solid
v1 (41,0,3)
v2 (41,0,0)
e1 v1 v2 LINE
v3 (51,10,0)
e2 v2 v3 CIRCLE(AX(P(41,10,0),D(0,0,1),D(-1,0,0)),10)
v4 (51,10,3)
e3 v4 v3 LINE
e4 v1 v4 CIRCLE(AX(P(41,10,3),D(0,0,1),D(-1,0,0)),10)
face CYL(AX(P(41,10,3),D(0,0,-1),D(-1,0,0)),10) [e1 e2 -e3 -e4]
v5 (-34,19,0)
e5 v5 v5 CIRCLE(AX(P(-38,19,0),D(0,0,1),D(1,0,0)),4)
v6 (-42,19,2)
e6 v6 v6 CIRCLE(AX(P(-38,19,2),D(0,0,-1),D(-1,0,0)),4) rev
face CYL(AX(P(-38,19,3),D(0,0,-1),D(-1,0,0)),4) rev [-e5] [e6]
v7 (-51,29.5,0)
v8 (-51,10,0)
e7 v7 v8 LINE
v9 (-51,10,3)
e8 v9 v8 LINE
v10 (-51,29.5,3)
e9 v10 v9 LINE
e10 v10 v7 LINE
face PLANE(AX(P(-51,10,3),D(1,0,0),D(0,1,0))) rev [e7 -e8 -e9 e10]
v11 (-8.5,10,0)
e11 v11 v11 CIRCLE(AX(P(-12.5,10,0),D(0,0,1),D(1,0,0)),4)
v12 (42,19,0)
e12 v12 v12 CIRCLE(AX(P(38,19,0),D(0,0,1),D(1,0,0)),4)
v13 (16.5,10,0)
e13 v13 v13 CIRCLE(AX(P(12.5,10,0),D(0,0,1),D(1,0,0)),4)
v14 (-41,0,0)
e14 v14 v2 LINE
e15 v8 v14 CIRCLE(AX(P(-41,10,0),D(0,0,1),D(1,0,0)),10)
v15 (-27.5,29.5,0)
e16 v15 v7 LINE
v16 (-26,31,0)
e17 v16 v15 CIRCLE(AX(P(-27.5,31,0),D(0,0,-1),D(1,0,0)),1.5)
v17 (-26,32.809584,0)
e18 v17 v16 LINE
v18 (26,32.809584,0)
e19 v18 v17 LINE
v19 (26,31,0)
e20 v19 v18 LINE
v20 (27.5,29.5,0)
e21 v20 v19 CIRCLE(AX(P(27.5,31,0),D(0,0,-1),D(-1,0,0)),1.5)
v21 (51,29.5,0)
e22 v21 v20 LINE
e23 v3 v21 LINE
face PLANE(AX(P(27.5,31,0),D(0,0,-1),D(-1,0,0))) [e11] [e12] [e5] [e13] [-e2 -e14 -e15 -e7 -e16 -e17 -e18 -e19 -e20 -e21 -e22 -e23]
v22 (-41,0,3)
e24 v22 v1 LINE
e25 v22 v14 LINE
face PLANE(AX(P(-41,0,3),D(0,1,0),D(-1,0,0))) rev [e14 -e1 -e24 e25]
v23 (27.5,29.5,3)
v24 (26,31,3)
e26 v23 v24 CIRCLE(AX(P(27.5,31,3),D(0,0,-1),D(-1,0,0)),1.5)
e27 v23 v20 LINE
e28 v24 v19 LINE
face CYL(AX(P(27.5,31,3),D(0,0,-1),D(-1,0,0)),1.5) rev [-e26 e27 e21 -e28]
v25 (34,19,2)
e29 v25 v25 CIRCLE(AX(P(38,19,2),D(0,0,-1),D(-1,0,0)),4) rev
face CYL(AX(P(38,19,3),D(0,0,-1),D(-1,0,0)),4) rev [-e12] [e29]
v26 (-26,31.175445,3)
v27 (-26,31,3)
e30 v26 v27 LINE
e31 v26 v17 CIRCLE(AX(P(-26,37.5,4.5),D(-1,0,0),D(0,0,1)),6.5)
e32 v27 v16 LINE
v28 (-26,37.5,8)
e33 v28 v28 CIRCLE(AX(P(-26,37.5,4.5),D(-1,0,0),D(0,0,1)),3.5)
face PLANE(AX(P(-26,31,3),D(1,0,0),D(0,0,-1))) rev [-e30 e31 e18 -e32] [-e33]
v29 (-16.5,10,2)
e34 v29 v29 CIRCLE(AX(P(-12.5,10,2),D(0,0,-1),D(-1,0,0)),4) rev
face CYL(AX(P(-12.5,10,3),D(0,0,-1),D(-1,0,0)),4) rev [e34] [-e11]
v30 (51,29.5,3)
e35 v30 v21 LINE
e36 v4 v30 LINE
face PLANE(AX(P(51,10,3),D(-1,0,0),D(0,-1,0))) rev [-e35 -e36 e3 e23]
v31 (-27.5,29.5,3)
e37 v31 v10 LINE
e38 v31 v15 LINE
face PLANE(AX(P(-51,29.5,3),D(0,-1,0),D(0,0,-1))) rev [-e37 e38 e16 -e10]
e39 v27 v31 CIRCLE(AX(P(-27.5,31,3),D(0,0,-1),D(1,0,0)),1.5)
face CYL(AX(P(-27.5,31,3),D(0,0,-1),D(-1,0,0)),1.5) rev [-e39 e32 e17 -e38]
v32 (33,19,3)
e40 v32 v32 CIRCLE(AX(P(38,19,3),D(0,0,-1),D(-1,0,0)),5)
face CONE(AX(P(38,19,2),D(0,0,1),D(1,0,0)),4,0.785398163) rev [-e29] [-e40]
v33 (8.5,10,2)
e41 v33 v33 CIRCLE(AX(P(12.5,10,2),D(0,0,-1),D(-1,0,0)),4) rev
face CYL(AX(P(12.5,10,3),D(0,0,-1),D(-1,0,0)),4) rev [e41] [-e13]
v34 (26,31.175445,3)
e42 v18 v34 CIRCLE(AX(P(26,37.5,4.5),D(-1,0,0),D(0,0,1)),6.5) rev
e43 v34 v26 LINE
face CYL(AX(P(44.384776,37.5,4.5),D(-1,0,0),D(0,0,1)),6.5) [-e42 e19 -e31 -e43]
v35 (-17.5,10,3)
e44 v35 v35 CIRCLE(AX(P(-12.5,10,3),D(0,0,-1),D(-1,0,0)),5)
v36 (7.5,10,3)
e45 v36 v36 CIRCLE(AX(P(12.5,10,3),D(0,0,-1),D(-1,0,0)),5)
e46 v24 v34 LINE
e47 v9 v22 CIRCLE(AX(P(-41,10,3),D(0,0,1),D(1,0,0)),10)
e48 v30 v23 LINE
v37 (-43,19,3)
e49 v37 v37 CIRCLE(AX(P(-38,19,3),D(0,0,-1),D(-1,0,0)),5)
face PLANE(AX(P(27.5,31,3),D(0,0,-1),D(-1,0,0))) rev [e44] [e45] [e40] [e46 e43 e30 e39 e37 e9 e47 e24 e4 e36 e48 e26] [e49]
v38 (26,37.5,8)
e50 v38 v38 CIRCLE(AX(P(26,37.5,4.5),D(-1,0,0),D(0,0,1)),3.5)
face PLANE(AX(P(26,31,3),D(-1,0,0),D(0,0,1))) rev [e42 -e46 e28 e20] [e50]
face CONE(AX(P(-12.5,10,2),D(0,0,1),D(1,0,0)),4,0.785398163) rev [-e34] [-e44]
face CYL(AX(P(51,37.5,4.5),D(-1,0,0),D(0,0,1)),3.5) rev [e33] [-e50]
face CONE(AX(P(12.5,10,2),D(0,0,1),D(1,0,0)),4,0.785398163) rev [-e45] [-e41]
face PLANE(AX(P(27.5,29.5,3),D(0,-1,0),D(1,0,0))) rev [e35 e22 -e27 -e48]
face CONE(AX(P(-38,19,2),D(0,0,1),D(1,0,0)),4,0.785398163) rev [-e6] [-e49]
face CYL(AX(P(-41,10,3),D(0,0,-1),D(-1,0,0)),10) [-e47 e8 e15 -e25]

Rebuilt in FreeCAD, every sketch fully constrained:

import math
import FreeCAD as App
import Part
import Sketcher


def edges_at(feature, points):
    """Names of the edges that pass closest to the given points."""
    edges = feature.Shape.Edges
    near = lambda p: min(range(len(edges)), key=lambda i: edges[i].distToShape(Part.Vertex(*p))[0])
    return sorted({f"Edge{near(p) + 1}" for p in points})

doc = App.newDocument("Part")
params = doc.addObject("Spreadsheet::Sheet", "Params")
for row, (alias, value) in enumerate([
    ("sketch1_diameter", "8 mm"),
    ("sketch1_radius", "10 mm"),
    ("sketch1_radius2", "1.5 mm"),
    ("sketch1_width", "52 mm"),
    ("sketch1_width2", "82 mm"),
    ("pad1_length", "3 mm"),
    ("sketch2_diameter", "13 mm"),
    ("pad2_length", "52 mm"),
    ("sketch3_diameter", "7 mm"),
    ("chamfer_size", "1 mm"),
], start=1):
    params.set(f"A{row}", alias)
    params.set(f"B{row}", "=" + value)
    params.setAlias(f"B{row}", alias)

body = doc.addObject("PartDesign::Body", "Body")

sketch1 = body.newObject("Sketcher::SketchObject", "Sketch")
sketch1.AttachmentSupport = (doc.getObject("XY_Plane"), [""])
sketch1.MapMode = "FlatFace"
sketch1.addGeometry(Part.LineSegment(App.Vector(51, 29.5, 0), App.Vector(27.5, 29.5, 0)), False)
sketch1.addGeometry(Part.ArcOfCircle(Part.Circle(App.Vector(27.5, 31, 0), App.Vector(0, 0, 1), 1.5), math.radians(180), math.radians(270)), False)
sketch1.addGeometry(Part.LineSegment(App.Vector(26, 31, 0), App.Vector(26, 37.5, 0)), False)
sketch1.addGeometry(Part.LineSegment(App.Vector(26, 37.5, 0), App.Vector(-26, 37.5, 0)), False)
sketch1.addGeometry(Part.LineSegment(App.Vector(-26, 37.5, 0), App.Vector(-26, 31, 0)), False)
sketch1.addGeometry(Part.ArcOfCircle(Part.Circle(App.Vector(-27.5, 31, 0), App.Vector(0, 0, 1), 1.5), math.radians(-90), math.radians(0)), False)
sketch1.addGeometry(Part.LineSegment(App.Vector(-27.5, 29.5, 0), App.Vector(-51, 29.5, 0)), False)
sketch1.addGeometry(Part.LineSegment(App.Vector(-51, 29.5, 0), App.Vector(-51, 10, 0)), False)
sketch1.addGeometry(Part.ArcOfCircle(Part.Circle(App.Vector(-41, 10, 0), App.Vector(0, 0, 1), 10), math.radians(180), math.radians(270)), False)
sketch1.addGeometry(Part.LineSegment(App.Vector(-41, 0, 0), App.Vector(41, 0, 0)), False)
sketch1.addGeometry(Part.ArcOfCircle(Part.Circle(App.Vector(41, 10, 0), App.Vector(0, 0, 1), 10), math.radians(-90), math.radians(0)), False)
sketch1.addGeometry(Part.LineSegment(App.Vector(51, 10, 0), App.Vector(51, 29.5, 0)), False)
sketch1.addGeometry(Part.Circle(App.Vector(12.5, 10, 0), App.Vector(0, 0, 1), 4), False)
sketch1.addGeometry(Part.Circle(App.Vector(-12.5, 10, 0), App.Vector(0, 0, 1), 4), False)
sketch1.addGeometry(Part.Circle(App.Vector(38, 19, 0), App.Vector(0, 0, 1), 4), False)
sketch1.addGeometry(Part.Circle(App.Vector(-38, 19, 0), App.Vector(0, 0, 1), 4), False)
sketch1.addConstraint(Sketcher.Constraint("Tangent", 0, 2, 1, 2))
sketch1.addConstraint(Sketcher.Constraint("Tangent", 1, 1, 2, 1))
sketch1.addConstraint(Sketcher.Constraint("Coincident", 2, 2, 3, 1))
sketch1.addConstraint(Sketcher.Constraint("Coincident", 3, 2, 4, 1))
sketch1.addConstraint(Sketcher.Constraint("Tangent", 4, 2, 5, 2))
sketch1.addConstraint(Sketcher.Constraint("Tangent", 5, 1, 6, 1))
sketch1.addConstraint(Sketcher.Constraint("Coincident", 6, 2, 7, 1))
sketch1.addConstraint(Sketcher.Constraint("Tangent", 7, 2, 8, 1))
sketch1.addConstraint(Sketcher.Constraint("Tangent", 8, 2, 9, 1))
sketch1.addConstraint(Sketcher.Constraint("Tangent", 9, 2, 10, 1))
sketch1.addConstraint(Sketcher.Constraint("Tangent", 10, 2, 11, 1))
sketch1.addConstraint(Sketcher.Constraint("Coincident", 11, 2, 0, 1))
sketch1.addConstraint(Sketcher.Constraint("Horizontal", 0))
sketch1.addConstraint(Sketcher.Constraint("Vertical", 2))
sketch1.addConstraint(Sketcher.Constraint("Horizontal", 3))
sketch1.addConstraint(Sketcher.Constraint("Vertical", 4))
sketch1.addConstraint(Sketcher.Constraint("Horizontal", 6))
sketch1.addConstraint(Sketcher.Constraint("Vertical", 7))
sketch1.addConstraint(Sketcher.Constraint("Horizontal", 9))
sketch1.addConstraint(Sketcher.Constraint("Vertical", 11))
sketch1.addConstraint(Sketcher.Constraint("Equal", 1, 5))
sketch1.addConstraint(Sketcher.Constraint("Equal", 8, 10))
sketch1.addConstraint(Sketcher.Constraint("Equal", 12, 13))
sketch1.addConstraint(Sketcher.Constraint("Equal", 13, 14))
sketch1.addConstraint(Sketcher.Constraint("Equal", 14, 15))
sketch1.addConstraint(Sketcher.Constraint("Symmetric", 8, 2, 9, 2, -1, 1))
sketch1.addConstraint(Sketcher.Constraint("Symmetric", 1, 3, 5, 3, -2))
sketch1.addConstraint(Sketcher.Constraint("Symmetric", 12, 3, 13, 3, -2))
sketch1.addConstraint(Sketcher.Constraint("Symmetric", 14, 3, 15, 3, -2))
sketch1.addConstraint(Sketcher.Constraint("Horizontal", 10, 3, 12, 3))
sketch1.addConstraint(Sketcher.Constraint("Diameter", 12, 8.0))
sketch1.addConstraint(Sketcher.Constraint("Radius", 8, 10.0))
sketch1.addConstraint(Sketcher.Constraint("Radius", 1, 1.5))
sketch1.addConstraint(Sketcher.Constraint("DistanceX", 3, 2, 3, 1, 52.0))
sketch1.addConstraint(Sketcher.Constraint("DistanceX", 9, 1, 9, 2, 82.0))
sketch1.addConstraint(Sketcher.Constraint("DistanceY", 2, 1, 2, 2, 6.5))
sketch1.addConstraint(Sketcher.Constraint("DistanceY", 7, 2, 7, 1, 19.5))
sketch1.addConstraint(Sketcher.Constraint("DistanceX", -1, 1, 14, 3, 38.0))
sketch1.addConstraint(Sketcher.Constraint("DistanceY", -1, 1, 14, 3, 19.0))
sketch1.addConstraint(Sketcher.Constraint("DistanceX", 12, 3, 1, 3, 15.0))
sketch1.setExpression("Constraints[30]", "Params.sketch1_diameter")
sketch1.setExpression("Constraints[31]", "Params.sketch1_radius")
sketch1.setExpression("Constraints[32]", "Params.sketch1_radius2")
sketch1.setExpression("Constraints[33]", "Params.sketch1_width")
sketch1.setExpression("Constraints[34]", "Params.sketch1_width2")
pad1 = body.newObject("PartDesign::Pad", "Pad")
pad1.Profile = sketch1
pad1.setExpression("Length", "Params.pad1_length")

sketch2 = body.newObject("Sketcher::SketchObject", "Sketch001")
sketch2.AttachmentSupport = (doc.getObject("YZ_Plane"), [""])
sketch2.MapMode = "FlatFace"
sketch2.AttachmentOffset = App.Placement(App.Vector(0, 0, -26), App.Rotation())
sketch2.addGeometry(Part.Circle(App.Vector(38, 4, 0), App.Vector(0, 0, 1), 6), False)
sketch2.addConstraint(Sketcher.Constraint("Diameter", 0, 13.0))
sketch2.addConstraint(Sketcher.Constraint("DistanceX", -1, 1, 0, 3, 37.5))
sketch2.addConstraint(Sketcher.Constraint("DistanceY", -1, 1, 0, 3, 4.5))
sketch2.setExpression("Constraints[0]", "Params.sketch2_diameter")
pad2 = body.newObject("PartDesign::Pad", "Pad001")
pad2.Profile = sketch2
pad2.setExpression("Length", "Params.pad2_length")

sketch3 = body.newObject("Sketcher::SketchObject", "Sketch002")
sketch3.AttachmentSupport = (doc.getObject("YZ_Plane"), [""])
sketch3.MapMode = "FlatFace"
sketch3.AttachmentOffset = App.Placement(App.Vector(0, 0, -26), App.Rotation())
sketch3.addGeometry(Part.Circle(App.Vector(37.5, 4.5, 0), App.Vector(0, 0, 1), 3.5), False)
sketch3.addConstraint(Sketcher.Constraint("Diameter", 0, 7.0))
sketch3.addConstraint(Sketcher.Constraint("DistanceX", -1, 1, 0, 3, 37.5))
sketch3.addConstraint(Sketcher.Constraint("DistanceY", -1, 1, 0, 3, 4.5))
sketch3.setExpression("Constraints[0]", "Params.sketch3_diameter")
pocket1 = body.newObject("PartDesign::Pocket", "Pocket")
pocket1.Profile = sketch3
pocket1.Type = "ThroughAll"
pocket1.Reversed = True
doc.recompute()

chamfer = body.newObject("PartDesign::Chamfer", "Chamfer")
chamfer.Base = (pocket1, edges_at(pocket1, [
    (-42, 19, 3),
    (34, 19, 3),
    (-16.5, 10, 3),
    (8.5, 10, 3),
]))
chamfer.setExpression("Size", "Params.chamfer_size")

doc.recompute()
